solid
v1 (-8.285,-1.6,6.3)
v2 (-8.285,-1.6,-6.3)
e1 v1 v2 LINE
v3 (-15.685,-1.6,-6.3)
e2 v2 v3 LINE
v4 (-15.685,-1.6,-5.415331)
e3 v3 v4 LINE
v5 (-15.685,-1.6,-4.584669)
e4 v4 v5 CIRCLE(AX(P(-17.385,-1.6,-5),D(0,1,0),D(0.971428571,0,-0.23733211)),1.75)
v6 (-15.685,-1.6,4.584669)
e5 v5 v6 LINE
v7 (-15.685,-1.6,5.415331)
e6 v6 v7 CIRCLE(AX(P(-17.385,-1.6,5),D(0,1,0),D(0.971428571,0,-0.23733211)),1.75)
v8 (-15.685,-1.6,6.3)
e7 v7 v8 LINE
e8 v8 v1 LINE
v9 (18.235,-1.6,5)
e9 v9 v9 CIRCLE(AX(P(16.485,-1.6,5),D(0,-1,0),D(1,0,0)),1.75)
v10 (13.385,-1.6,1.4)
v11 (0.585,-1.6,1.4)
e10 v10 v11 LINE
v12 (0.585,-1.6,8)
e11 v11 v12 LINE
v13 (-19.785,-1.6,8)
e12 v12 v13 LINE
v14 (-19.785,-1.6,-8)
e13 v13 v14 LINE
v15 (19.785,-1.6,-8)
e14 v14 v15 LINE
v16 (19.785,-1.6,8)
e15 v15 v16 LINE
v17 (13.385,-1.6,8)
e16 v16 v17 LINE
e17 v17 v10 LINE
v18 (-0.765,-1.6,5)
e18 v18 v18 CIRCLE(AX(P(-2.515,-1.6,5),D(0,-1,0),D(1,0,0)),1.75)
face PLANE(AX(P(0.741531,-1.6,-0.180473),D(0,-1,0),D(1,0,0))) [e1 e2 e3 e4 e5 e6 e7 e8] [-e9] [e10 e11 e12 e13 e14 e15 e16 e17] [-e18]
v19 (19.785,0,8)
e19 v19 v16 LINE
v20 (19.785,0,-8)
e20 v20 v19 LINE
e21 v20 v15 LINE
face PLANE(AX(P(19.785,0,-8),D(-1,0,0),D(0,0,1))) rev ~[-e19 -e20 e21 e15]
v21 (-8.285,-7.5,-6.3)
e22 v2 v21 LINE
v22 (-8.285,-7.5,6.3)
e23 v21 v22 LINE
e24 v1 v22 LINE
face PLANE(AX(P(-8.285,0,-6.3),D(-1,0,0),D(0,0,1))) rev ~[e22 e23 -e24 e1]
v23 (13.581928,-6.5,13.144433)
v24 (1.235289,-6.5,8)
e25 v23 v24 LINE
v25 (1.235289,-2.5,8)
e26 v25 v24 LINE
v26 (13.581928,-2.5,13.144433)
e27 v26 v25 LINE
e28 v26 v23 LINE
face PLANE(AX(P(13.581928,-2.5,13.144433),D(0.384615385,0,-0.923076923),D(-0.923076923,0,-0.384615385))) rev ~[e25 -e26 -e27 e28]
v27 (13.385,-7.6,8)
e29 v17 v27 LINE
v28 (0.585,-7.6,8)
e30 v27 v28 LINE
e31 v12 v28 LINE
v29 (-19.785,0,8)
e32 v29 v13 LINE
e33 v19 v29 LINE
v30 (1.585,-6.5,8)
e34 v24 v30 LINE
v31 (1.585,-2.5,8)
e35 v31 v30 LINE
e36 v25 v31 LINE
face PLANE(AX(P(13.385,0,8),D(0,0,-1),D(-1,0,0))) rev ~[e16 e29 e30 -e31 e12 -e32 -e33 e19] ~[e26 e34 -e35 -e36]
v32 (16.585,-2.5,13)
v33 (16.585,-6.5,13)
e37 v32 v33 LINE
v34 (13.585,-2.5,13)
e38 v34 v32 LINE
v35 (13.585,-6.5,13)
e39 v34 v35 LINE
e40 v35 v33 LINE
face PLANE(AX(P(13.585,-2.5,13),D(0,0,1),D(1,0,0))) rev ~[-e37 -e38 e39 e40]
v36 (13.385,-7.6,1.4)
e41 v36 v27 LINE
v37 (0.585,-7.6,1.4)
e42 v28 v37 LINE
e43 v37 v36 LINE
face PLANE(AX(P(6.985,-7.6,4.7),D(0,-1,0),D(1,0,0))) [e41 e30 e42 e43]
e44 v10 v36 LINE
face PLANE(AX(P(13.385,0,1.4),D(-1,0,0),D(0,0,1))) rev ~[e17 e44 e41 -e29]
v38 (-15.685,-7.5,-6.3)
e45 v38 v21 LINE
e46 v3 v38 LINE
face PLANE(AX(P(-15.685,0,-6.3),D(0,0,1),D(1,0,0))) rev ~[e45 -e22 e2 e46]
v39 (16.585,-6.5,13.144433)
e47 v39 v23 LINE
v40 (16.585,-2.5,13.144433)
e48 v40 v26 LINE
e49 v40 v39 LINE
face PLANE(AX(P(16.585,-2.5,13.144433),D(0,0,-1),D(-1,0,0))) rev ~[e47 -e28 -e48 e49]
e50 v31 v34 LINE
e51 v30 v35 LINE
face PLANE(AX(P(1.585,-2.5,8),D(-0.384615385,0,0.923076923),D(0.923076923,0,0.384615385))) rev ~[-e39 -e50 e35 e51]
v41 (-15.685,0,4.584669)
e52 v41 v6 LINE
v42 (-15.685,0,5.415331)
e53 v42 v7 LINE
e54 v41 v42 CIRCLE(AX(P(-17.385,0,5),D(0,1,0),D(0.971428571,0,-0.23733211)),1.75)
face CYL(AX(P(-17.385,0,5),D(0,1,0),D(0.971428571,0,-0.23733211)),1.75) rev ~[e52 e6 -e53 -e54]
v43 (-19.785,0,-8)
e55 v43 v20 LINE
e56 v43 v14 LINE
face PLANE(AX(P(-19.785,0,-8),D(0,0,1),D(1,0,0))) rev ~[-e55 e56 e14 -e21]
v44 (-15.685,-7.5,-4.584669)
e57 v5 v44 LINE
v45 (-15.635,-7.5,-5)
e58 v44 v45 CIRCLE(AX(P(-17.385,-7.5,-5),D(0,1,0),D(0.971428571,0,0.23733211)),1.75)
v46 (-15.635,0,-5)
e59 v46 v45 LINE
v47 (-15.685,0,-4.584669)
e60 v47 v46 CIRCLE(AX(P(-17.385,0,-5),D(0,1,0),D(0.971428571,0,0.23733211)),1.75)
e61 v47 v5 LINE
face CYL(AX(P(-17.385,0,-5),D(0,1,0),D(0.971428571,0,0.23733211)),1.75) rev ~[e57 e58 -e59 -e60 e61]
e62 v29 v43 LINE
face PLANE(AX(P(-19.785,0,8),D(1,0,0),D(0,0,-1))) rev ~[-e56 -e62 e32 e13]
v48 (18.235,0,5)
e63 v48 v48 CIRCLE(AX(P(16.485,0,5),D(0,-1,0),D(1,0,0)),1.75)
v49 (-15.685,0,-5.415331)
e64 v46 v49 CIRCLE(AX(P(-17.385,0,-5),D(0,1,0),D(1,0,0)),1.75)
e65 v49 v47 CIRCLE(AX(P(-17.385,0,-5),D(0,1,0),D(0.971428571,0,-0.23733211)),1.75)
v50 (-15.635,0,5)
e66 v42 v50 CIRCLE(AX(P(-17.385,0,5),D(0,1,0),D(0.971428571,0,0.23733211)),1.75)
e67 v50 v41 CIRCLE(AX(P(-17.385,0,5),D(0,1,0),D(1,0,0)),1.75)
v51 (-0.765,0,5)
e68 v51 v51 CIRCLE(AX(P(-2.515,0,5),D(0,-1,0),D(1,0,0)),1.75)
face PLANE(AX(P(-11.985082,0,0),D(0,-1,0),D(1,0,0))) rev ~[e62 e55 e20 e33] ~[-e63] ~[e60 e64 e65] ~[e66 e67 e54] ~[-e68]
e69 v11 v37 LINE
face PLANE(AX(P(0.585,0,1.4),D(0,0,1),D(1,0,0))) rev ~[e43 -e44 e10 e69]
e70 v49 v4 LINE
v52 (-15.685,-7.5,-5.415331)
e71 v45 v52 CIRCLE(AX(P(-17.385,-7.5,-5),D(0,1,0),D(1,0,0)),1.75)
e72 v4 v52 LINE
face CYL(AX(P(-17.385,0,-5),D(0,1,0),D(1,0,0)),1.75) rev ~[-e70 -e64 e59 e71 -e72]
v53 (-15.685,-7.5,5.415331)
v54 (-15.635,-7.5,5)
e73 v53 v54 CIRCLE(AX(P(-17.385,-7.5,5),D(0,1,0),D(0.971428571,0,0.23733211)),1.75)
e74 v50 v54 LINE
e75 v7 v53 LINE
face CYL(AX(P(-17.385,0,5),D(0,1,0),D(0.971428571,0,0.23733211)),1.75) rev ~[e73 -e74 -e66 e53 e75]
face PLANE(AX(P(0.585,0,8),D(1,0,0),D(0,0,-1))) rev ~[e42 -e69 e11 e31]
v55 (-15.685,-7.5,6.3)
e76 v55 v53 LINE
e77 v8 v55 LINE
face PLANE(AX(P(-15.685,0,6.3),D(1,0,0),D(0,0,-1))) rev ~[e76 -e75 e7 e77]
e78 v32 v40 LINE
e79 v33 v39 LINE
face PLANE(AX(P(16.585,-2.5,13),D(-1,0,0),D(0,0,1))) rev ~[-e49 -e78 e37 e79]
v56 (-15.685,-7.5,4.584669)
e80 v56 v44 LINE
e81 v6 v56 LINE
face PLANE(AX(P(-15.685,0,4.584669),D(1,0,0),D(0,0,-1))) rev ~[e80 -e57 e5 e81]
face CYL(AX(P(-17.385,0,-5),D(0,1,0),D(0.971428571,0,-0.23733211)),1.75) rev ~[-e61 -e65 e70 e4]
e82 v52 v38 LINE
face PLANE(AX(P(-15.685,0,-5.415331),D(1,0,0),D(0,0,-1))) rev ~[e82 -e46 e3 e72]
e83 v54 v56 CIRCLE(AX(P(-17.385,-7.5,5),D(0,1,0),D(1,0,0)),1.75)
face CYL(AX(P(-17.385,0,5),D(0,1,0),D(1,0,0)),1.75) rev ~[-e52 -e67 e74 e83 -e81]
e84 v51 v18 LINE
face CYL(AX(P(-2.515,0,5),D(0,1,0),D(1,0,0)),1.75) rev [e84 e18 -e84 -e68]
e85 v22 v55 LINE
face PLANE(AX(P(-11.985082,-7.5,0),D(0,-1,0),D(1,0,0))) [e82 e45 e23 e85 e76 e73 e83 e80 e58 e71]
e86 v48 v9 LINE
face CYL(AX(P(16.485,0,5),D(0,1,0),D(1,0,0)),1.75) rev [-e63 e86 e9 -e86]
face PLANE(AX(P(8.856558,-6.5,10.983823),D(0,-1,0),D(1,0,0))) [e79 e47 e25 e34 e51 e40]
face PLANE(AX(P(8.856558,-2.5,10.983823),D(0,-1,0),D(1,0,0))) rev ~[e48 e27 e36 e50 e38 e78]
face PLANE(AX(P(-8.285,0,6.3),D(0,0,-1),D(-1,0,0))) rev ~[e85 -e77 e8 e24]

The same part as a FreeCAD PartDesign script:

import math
import FreeCAD as App
import Part
import Sketcher
Q = App.Units.Quantity

doc = App.newDocument("Part")
body = doc.addObject("PartDesign::Body", "Body")

# Sketch on XZ plane
sketch1 = doc.addObject("Sketcher::SketchObject", "Sketch")
body.addObject(sketch1)
sketch1.AttachmentSupport = (doc.XZ_Plane, [""])
sketch1.MapMode = "FlatFace"
sketch1.addGeometry([
    Part.LineSegment(App.Vector(19.8, -8, 0), App.Vector(19.8, 8, 0)),  # 0
    Part.LineSegment(App.Vector(19.8, 8, 0), App.Vector(13.4, 8, 0)),  # 1
    Part.LineSegment(App.Vector(13.4, 8, 0), App.Vector(13.4, 1.4, 0)),  # 2
    Part.LineSegment(App.Vector(13.4, 1.4, 0), App.Vector(0.6, 1.4, 0)),  # 3
    Part.LineSegment(App.Vector(0.6, 1.4, 0), App.Vector(0.6, 8, 0)),  # 4
    Part.LineSegment(App.Vector(0.6, 8, 0), App.Vector(-19.8, 8, 0)),  # 5
    Part.LineSegment(App.Vector(-19.8, 8, 0), App.Vector(-19.8, -8, 0)),  # 6
    Part.LineSegment(App.Vector(-19.8, -8, 0), App.Vector(19.8, -8, 0)),  # 7
    Part.LineSegment(App.Vector(-15.7, -4.6, 0), App.Vector(-15.7, 4.6, 0)),  # 8
    Part.ArcOfCircle(Part.Circle(App.Vector(-17.4, 5, 0), App.Vector(0, 0, 1), 1.8), math.radians(14), math.radians(346)),  # 9
    Part.LineSegment(App.Vector(-15.7, 5.4, 0), App.Vector(-15.7, 6.3, 0)),  # 10
    Part.LineSegment(App.Vector(-15.7, 6.3, 0), App.Vector(-8.3, 6.3, 0)),  # 11
    Part.LineSegment(App.Vector(-8.3, 6.3, 0), App.Vector(-8.3, -6.3, 0)),  # 12
    Part.LineSegment(App.Vector(-8.3, -6.3, 0), App.Vector(-15.7, -6.3, 0)),  # 13
    Part.LineSegment(App.Vector(-15.7, -6.3, 0), App.Vector(-15.7, -5.4, 0)),  # 14
    Part.ArcOfCircle(Part.Circle(App.Vector(-17.4, -5, 0), App.Vector(0, 0, 1), 1.8), math.radians(14), math.radians(346)),  # 15
    Part.Circle(App.Vector(-2.5, 5, 0), App.Vector(0, 0, 1), 1.8),  # 16
    Part.Circle(App.Vector(16.5, 5, 0), App.Vector(0, 0, 1), 1.8),  # 17
], False)
sketch1.addConstraint([
    Sketcher.Constraint("Coincident", 0, 2, 1, 1),
    Sketcher.Constraint("Coincident", 1, 2, 2, 1),
    Sketcher.Constraint("Coincident", 2, 2, 3, 1),
    Sketcher.Constraint("Coincident", 3, 2, 4, 1),
    Sketcher.Constraint("Coincident", 4, 2, 5, 1),
    Sketcher.Constraint("Coincident", 5, 2, 6, 1),
    Sketcher.Constraint("Coincident", 6, 2, 7, 1),
    Sketcher.Constraint("Coincident", 7, 2, 0, 1),
    Sketcher.Constraint("Coincident", 8, 2, 9, 2),
    Sketcher.Constraint("Coincident", 9, 1, 10, 1),
    Sketcher.Constraint("Coincident", 10, 2, 11, 1),
    Sketcher.Constraint("Coincident", 11, 2, 12, 1),
    Sketcher.Constraint("Coincident", 12, 2, 13, 1),
    Sketcher.Constraint("Coincident", 13, 2, 14, 1),
    Sketcher.Constraint("Coincident", 14, 2, 15, 2),
    Sketcher.Constraint("Coincident", 15, 1, 8, 1),
    Sketcher.Constraint("Vertical", 0),
    Sketcher.Constraint("Horizontal", 1),
    Sketcher.Constraint("Vertical", 2),
    Sketcher.Constraint("Horizontal", 3),
    Sketcher.Constraint("Vertical", 4),
    Sketcher.Constraint("Horizontal", 5),
    Sketcher.Constraint("Vertical", 6),
    Sketcher.Constraint("Horizontal", 7),
    Sketcher.Constraint("Vertical", 8),
    Sketcher.Constraint("Vertical", 10),
    Sketcher.Constraint("Horizontal", 11),
    Sketcher.Constraint("Vertical", 12),
    Sketcher.Constraint("Horizontal", 13),
    Sketcher.Constraint("Vertical", 14),
    Sketcher.Constraint("Equal", 9, 15),
    Sketcher.Constraint("Equal", 15, 16),
    Sketcher.Constraint("Equal", 16, 17),
    Sketcher.Constraint("Symmetric", 0, 2, 6, 2, -1, 1),
    Sketcher.Constraint("Symmetric", 9, 3, 15, 3, -1),
    Sketcher.Constraint("Symmetric", 10, 2, 13, 2, -1),
    Sketcher.Constraint("Horizontal", 9, 3, 16, 3),
    Sketcher.Constraint("Horizontal", 16, 3, 17, 3),
    Sketcher.Constraint("Horizontal", 1, 2, 4, 2),
    Sketcher.Constraint("Vertical", 8, 2, 9, 1),
    Sketcher.Constraint("Diameter", 16, Q("3.5 mm")),
    Sketcher.Constraint("DistanceY", 0, 1, 0, 2, Q("16 mm")),
    Sketcher.Constraint("DistanceX", 1, 2, 1, 1, Q("6.4 mm")),
    Sketcher.Constraint("DistanceX", 3, 2, 3, 1, Q("12.8 mm")),
    Sketcher.Constraint("DistanceX", 11, 1, 11, 2, Q("7.4 mm")),
    Sketcher.Constraint("DistanceY", 2, 2, 2, 1, Q("6.6 mm")),
    Sketcher.Constraint("DistanceY", 12, 2, 12, 1, Q("12.6 mm")),
    Sketcher.Constraint("DistanceY", -1, 1, 9, 3, Q("5 mm")),
    Sketcher.Constraint("DistanceX", 16, 3, 17, 3, Q("19 mm")),
    Sketcher.Constraint("DistanceX", 5, 2, 5, 1, Q("20.37 mm")),
    Sketcher.Constraint("DistanceX", 17, 3, 0, 2, Q("3.3 mm")),
    Sketcher.Constraint("DistanceX", 5, 2, 9, 3, Q("2.4 mm")),
    Sketcher.Constraint("DistanceX", 9, 3, 8, 2, Q("1.7 mm")),
])
pad1 = doc.addObject("PartDesign::Pad", "Pad")
body.addObject(pad1)
pad1.Profile = sketch1
pad1.Length = 1.6

# Sketch on XZ plane
sketch2 = doc.addObject("Sketcher::SketchObject", "Sketch001")
body.addObject(sketch2)
sketch2.AttachmentSupport = (doc.XZ_Plane, [""])
sketch2.MapMode = "FlatFace"
sketch2.addGeometry([
    Part.LineSegment(App.Vector(13, 1, 0), App.Vector(13, 8, 0)),
    Part.LineSegment(App.Vector(13, 8, 0), App.Vector(1, 8, 0)),
    Part.LineSegment(App.Vector(1, 8, 0), App.Vector(1, 1, 0)),
    Part.LineSegment(App.Vector(1, 1, 0), App.Vector(13, 1, 0)),
], False)
sketch2.addConstraint([
    Sketcher.Constraint("Coincident", 0, 2, 1, 1),
    Sketcher.Constraint("Coincident", 1, 2, 2, 1),
    Sketcher.Constraint("Coincident", 2, 2, 3, 1),
    Sketcher.Constraint("Coincident", 3, 2, 0, 1),
    Sketcher.Constraint("Vertical", 0),
    Sketcher.Constraint("Horizontal", 1),
    Sketcher.Constraint("Vertical", 2),
    Sketcher.Constraint("Horizontal", 3),
    Sketcher.Constraint("DistanceX", 1, 2, 1, 1, Q("12.8 mm")),
    Sketcher.Constraint("DistanceY", 0, 1, 0, 2, Q("6.6 mm")),
    Sketcher.Constraint("DistanceY", -1, 1, 0, 2, Q("8 mm")),
    Sketcher.Constraint("DistanceX", -1, 1, 0, 2, Q("13.385 mm")),
])
pad2 = doc.addObject("PartDesign::Pad", "Pad001")
body.addObject(pad2)
pad2.Profile = sketch2
pad2.Length = 7.6

# Sketch on XZ plane
sketch3 = doc.addObject("Sketcher::SketchObject", "Sketch002")
body.addObject(sketch3)
sketch3.AttachmentSupport = (doc.XZ_Plane, [""])
sketch3.MapMode = "FlatFace"
sketch3.addGeometry([
    Part.ArcOfCircle(Part.Circle(App.Vector(-17.38, 5, 0), App.Vector(0, 0, 1), 1.75), math.radians(0), math.radians(13.73)),  # 0
    Part.ArcOfCircle(Part.Circle(App.Vector(-17.38, 5, 0), App.Vector(0, 0, 1), 1.75), math.radians(-13.73), math.radians(0)),  # 1
    Part.LineSegment(App.Vector(-15.69, 4.58, 0), App.Vector(-15.69, -4.58, 0)),  # 2
    Part.ArcOfCircle(Part.Circle(App.Vector(-17.38, -5, 0), App.Vector(0, 0, 1), 1.75), math.radians(0), math.radians(13.73)),  # 3
    Part.ArcOfCircle(Part.Circle(App.Vector(-17.38, -5, 0), App.Vector(0, 0, 1), 1.75), math.radians(-13.73), math.radians(0)),  # 4
    Part.LineSegment(App.Vector(-15.69, -5.42, 0), App.Vector(-15.69, -6.3, 0)),  # 5
    Part.LineSegment(App.Vector(-15.69, -6.3, 0), App.Vector(-8.29, -6.3, 0)),  # 6
    Part.LineSegment(App.Vector(-8.29, -6.3, 0), App.Vector(-8.29, 6.3, 0)),  # 7
    Part.LineSegment(App.Vector(-8.29, 6.3, 0), App.Vector(-15.69, 6.3, 0)),  # 8
    Part.LineSegment(App.Vector(-15.69, 6.3, 0), App.Vector(-15.69, 5.42, 0)),  # 9
], False)
sketch3.addConstraint([
    Sketcher.Constraint("Tangent", 0, 1, 1, 2),
    Sketcher.Constraint("Coincident", 1, 1, 2, 1),
    Sketcher.Constraint("Coincident", 2, 2, 3, 2),
    Sketcher.Constraint("Tangent", 3, 1, 4, 2),
    Sketcher.Constraint("Coincident", 4, 1, 5, 1),
    Sketcher.Constraint("Coincident", 5, 2, 6, 1),
    Sketcher.Constraint("Coincident", 6, 2, 7, 1),
    Sketcher.Constraint("Coincident", 7, 2, 8, 1),
    Sketcher.Constraint("Coincident", 8, 2, 9, 1),
    Sketcher.Constraint("Coincident", 9, 2, 0, 2),
    Sketcher.Constraint("Vertical", 2),
    Sketcher.Constraint("Vertical", 5),
    Sketcher.Constraint("Horizontal", 6),
    Sketcher.Constraint("Vertical", 7),
    Sketcher.Constraint("Horizontal", 8),
    Sketcher.Constraint("Vertical", 9),
    Sketcher.Constraint("Equal", 0, 1),
    Sketcher.Constraint("Equal", 1, 3),
    Sketcher.Constraint("Equal", 3, 4),
    Sketcher.Constraint("Symmetric", 0, 3, 3, 3, -1),
    Sketcher.Constraint("Symmetric", 5, 2, 8, 2, -1),
    Sketcher.Constraint("Horizontal", 1, 3, 0, 1),
    Sketcher.Constraint("Horizontal", 4, 3, 3, 1),
    Sketcher.Constraint("Vertical", 2, 2, 4, 1),
    Sketcher.Constraint("Radius", 0, Q("1.75 mm")),
    Sketcher.Constraint("DistanceX", 6, 1, 6, 2, Q("7.4 mm")),
    Sketcher.Constraint("DistanceY", 7, 1, 7, 2, Q("12.6 mm")),
    Sketcher.Constraint("DistanceY", -1, 1, 0, 3, Q("5 mm")),
    Sketcher.Constraint("DistanceX", 0, 3, 1, 1, Q("1.7 mm")),
    Sketcher.Constraint("DistanceX", 0, 3, -1, 1, Q("17.385 mm")),
])
pad3 = doc.addObject("PartDesign::Pad", "Pad002")
body.addObject(pad3)
pad3.Profile = sketch3
pad3.Length = 7.5

# Sketch on XZ plane
sketch4 = doc.addObject("Sketcher::SketchObject", "Sketch003")
body.addObject(sketch4)
sketch4.AttachmentSupport = (doc.XZ_Plane, [""])
sketch4.MapMode = "FlatFace"
sketch4.AttachmentOffset = App.Placement(App.Vector(0, 0, 2.5), App.Rotation())
sketch4.addGeometry([
    Part.LineSegment(App.Vector(1.24, 8, 0), App.Vector(1.58, 8, 0)),  # 0
    Part.LineSegment(App.Vector(1.58, 8, 0), App.Vector(13.59, 13, 0)),  # 1
    Part.LineSegment(App.Vector(13.59, 13, 0), App.Vector(16.59, 13, 0)),  # 2
    Part.LineSegment(App.Vector(16.59, 13, 0), App.Vector(16.59, 13.14, 0)),  # 3
    Part.LineSegment(App.Vector(16.59, 13.14, 0), App.Vector(13.58, 13.14, 0)),  # 4
    Part.LineSegment(App.Vector(13.58, 13.14, 0), App.Vector(1.24, 8, 0)),  # 5
], False)
sketch4.addConstraint([
    Sketcher.Constraint("Coincident", 0, 2, 1, 1),
    Sketcher.Constraint("Coincident", 1, 2, 2, 1),
    Sketcher.Constraint("Coincident", 2, 2, 3, 1),
    Sketcher.Constraint("Coincident", 3, 2, 4, 1),
    Sketcher.Constraint("Coincident", 4, 2, 5, 1),
    Sketcher.Constraint("Coincident", 5, 2, 0, 1),
    Sketcher.Constraint("Horizontal", 0),
    Sketcher.Constraint("Horizontal", 2),
    Sketcher.Constraint("Vertical", 3),
    Sketcher.Constraint("Horizontal", 4),
    Sketcher.Constraint("Parallel", 1, 5),
    Sketcher.Constraint("DistanceX", 2, 1, 2, 2, Q("3 mm")),
    Sketcher.Constraint("Distance", 1, Q("13 mm")),
    Sketcher.Constraint("DistanceY", -1, 1, 0, 2, Q("8 mm")),
    Sketcher.Constraint("DistanceY", -1, 1, 1, 2, Q("13 mm")),
    Sketcher.Constraint("DistanceX", -1, 1, 0, 2, Q("1.585 mm")),
    Sketcher.Constraint("DistanceX", 0, 1, 0, 2, Q("0.349711 mm")),
    Sketcher.Constraint("DistanceX", 4, 2, 4, 1, Q("3.003072 mm")),
])
pad4 = doc.addObject("PartDesign::Pad", "Pad003")
body.addObject(pad4)
pad4.Profile = sketch4
pad4.Length = 4

doc.recompute()
